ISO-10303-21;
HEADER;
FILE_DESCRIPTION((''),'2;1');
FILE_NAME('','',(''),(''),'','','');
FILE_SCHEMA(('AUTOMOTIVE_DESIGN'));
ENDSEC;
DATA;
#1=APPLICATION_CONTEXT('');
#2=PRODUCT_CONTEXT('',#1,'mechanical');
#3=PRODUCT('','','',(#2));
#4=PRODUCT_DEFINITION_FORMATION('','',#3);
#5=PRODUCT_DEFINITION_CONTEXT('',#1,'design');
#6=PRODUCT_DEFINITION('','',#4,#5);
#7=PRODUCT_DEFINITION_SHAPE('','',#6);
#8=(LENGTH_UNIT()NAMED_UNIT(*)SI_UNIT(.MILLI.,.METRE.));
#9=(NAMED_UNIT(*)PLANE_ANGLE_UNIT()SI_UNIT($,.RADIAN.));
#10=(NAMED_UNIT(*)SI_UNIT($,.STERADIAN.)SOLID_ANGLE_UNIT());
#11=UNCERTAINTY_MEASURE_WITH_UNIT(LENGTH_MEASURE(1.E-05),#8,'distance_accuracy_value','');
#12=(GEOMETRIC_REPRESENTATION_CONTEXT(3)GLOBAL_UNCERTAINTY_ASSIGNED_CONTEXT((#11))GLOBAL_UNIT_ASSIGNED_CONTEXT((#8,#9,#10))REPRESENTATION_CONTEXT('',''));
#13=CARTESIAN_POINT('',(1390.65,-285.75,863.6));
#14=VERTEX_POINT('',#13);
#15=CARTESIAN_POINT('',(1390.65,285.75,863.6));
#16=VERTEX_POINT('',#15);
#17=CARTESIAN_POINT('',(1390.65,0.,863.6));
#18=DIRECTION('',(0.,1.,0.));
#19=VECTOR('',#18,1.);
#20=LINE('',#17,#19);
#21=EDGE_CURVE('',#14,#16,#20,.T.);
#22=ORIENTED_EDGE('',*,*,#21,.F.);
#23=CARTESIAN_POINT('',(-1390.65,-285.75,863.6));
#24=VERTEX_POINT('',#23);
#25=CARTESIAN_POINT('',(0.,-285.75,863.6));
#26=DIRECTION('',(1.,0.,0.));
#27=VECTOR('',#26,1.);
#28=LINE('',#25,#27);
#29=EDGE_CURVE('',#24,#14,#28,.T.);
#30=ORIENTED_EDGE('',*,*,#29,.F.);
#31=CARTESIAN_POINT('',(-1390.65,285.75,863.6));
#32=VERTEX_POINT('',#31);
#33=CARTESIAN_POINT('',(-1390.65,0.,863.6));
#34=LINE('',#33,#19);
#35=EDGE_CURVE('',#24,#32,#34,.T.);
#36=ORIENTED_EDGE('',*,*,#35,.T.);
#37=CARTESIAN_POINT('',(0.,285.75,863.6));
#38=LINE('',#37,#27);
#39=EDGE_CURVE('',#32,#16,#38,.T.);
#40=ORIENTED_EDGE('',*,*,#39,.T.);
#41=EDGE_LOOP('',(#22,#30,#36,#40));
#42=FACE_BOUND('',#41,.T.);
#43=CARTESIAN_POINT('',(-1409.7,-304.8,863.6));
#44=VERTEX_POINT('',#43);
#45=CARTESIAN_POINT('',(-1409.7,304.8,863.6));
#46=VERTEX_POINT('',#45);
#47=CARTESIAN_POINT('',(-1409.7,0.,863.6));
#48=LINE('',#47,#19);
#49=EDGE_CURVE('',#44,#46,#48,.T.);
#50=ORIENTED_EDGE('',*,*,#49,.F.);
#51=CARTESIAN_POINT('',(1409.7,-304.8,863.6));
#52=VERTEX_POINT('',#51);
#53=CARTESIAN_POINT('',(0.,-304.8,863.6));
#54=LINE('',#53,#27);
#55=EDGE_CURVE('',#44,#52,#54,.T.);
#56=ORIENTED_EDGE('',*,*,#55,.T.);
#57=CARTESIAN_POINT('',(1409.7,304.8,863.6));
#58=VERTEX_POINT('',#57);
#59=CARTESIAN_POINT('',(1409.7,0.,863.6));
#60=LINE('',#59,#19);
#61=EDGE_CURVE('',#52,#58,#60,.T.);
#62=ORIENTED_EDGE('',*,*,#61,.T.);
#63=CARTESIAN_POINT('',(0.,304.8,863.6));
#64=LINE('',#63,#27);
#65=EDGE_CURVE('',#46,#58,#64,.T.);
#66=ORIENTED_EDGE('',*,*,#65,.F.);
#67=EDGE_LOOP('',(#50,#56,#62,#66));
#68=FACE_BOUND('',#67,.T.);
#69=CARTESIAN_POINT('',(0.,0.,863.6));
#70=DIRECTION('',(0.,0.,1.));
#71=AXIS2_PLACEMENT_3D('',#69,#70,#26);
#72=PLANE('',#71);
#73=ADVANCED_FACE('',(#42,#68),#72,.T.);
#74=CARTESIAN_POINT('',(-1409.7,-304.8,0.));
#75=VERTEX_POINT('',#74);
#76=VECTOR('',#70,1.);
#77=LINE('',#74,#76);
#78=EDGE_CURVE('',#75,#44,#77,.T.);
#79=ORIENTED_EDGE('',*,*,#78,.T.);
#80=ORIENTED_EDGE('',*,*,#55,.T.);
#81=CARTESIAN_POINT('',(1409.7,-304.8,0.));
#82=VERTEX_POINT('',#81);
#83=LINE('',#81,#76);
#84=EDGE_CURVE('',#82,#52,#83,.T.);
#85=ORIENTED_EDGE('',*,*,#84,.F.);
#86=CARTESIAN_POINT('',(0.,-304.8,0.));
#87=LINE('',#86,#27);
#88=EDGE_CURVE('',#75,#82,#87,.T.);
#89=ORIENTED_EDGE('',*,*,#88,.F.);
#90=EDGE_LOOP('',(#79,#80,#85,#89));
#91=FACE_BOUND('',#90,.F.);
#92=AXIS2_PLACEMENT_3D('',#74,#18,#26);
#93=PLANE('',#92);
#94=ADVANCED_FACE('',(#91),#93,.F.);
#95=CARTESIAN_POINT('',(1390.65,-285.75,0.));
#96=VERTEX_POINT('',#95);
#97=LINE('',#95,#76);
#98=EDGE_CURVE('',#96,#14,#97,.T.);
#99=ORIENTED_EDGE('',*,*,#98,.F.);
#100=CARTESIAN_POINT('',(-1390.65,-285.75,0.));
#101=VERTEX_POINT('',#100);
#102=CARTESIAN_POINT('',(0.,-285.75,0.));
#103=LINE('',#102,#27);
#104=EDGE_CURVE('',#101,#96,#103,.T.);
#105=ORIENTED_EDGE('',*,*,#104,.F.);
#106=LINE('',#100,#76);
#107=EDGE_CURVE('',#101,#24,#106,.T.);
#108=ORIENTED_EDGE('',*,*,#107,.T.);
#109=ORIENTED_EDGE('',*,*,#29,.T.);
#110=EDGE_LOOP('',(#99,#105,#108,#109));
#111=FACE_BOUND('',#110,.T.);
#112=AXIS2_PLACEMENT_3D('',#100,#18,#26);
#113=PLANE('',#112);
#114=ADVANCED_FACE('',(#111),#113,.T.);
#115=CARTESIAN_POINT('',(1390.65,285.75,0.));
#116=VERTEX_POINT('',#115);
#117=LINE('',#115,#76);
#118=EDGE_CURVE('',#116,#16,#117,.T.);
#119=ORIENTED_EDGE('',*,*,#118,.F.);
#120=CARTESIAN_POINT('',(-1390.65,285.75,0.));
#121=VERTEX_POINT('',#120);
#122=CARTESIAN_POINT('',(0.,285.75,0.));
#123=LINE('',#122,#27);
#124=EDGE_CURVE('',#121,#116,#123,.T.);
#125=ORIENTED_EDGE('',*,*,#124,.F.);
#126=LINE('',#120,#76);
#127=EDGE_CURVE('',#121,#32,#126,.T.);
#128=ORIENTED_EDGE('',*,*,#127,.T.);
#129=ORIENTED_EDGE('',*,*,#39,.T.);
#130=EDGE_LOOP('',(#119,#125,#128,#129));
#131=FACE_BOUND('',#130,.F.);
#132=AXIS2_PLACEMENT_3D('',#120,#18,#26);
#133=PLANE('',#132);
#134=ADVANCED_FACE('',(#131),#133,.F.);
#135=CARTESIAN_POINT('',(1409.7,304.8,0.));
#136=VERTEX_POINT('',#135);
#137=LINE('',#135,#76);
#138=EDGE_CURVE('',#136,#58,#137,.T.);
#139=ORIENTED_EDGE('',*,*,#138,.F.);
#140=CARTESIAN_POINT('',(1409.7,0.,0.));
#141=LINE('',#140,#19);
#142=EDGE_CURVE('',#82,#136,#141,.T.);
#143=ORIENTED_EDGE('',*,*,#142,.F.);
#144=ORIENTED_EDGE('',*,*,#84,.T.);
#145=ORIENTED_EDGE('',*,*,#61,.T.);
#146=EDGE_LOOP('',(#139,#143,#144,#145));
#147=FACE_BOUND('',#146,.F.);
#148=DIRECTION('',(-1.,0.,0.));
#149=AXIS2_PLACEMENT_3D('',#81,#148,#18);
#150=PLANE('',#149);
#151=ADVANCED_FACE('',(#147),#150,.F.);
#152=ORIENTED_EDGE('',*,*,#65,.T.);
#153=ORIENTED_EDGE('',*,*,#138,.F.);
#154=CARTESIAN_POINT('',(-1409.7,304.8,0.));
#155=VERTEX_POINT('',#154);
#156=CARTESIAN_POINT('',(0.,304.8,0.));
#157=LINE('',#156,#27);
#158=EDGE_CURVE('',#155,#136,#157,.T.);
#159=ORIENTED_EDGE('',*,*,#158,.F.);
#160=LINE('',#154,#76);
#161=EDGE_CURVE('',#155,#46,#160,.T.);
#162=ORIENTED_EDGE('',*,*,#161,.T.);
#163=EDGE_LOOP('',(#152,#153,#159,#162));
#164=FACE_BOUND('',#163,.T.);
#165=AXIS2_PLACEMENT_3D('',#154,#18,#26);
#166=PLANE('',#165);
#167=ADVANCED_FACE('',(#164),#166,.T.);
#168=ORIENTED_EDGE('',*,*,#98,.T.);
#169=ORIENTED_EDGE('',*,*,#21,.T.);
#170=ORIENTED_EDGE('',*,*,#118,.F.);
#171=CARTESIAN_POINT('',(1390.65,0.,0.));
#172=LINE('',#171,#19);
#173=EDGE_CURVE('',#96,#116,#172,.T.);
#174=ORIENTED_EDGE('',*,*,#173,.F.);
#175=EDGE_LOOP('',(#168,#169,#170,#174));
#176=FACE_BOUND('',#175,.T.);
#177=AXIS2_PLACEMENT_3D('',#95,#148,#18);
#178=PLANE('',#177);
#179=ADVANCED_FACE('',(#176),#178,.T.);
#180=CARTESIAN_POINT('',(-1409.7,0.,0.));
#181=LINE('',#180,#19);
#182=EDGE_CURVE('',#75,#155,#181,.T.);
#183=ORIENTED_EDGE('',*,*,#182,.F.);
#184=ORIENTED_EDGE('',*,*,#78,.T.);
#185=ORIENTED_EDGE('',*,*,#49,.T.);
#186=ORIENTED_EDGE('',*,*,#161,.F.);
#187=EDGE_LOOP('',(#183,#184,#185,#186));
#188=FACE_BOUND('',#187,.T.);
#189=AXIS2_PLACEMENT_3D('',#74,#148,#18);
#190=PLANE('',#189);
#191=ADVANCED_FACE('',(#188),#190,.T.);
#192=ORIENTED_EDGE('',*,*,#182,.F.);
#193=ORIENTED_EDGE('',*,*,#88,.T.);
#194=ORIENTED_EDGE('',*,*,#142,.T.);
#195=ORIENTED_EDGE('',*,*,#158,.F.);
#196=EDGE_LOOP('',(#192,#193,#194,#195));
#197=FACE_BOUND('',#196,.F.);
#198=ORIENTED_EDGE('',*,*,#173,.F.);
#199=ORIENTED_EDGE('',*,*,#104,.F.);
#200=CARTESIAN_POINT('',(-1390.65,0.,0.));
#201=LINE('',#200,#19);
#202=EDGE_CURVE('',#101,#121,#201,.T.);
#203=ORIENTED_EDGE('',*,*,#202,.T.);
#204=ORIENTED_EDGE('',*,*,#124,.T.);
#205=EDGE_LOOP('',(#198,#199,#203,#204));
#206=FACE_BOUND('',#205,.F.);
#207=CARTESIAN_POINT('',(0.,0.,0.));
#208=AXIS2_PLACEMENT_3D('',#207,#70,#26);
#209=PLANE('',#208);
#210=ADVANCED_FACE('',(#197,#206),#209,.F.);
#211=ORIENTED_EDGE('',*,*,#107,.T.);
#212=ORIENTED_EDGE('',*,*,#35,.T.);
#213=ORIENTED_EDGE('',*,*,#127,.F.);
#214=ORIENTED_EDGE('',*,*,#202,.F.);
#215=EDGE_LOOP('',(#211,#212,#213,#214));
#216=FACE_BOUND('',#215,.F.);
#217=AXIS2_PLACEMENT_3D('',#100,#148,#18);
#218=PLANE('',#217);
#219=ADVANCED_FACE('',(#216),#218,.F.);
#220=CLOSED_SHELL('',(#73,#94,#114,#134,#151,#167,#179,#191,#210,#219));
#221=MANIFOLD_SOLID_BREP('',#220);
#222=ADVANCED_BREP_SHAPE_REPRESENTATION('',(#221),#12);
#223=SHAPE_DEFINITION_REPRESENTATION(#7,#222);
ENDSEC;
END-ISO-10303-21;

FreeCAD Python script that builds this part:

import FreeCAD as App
import Part
import Sketcher
from FreeCAD import Vector
Q = App.Units.Quantity


def add_polygon(sketch, points):
    """Adds a closed chain of lines whose ends are joined by coincident constraints."""
    first, n = sketch.GeometryCount, len(points)
    for a, b in zip(points, points[1:] + points[:1]):
        sketch.addGeometry(Part.LineSegment(App.Vector(*a, 0), App.Vector(*b, 0)), False)
    for i in range(n):
        sketch.addConstraint(Sketcher.Constraint("Coincident", first + i, 2, first + (i + 1) % n, 1))

doc = App.newDocument("Part")
params = doc.addObject("Spreadsheet::Sheet", "Params")
for row, (alias, value) in enumerate([
    ("sketch1_width", "111 in"),
    ("sketch1_height", "24 in"),
    ("sketch1_width2", "109.5 in"),
    ("sketch1_height2", "22.5 in"),
    ("pad1_length", "34 in"),
], start=1):
    params.set(f"A{row}", alias)
    params.set(f"B{row}", "=" + value)
    params.setAlias(f"B{row}", alias)

body = doc.addObject("PartDesign::Body", "Body")

sketch1 = body.newObject("Sketcher::SketchObject", "Sketch")
sketch1.AttachmentSupport = (doc.getObject("XY_Plane"), [""])
sketch1.MapMode = "FlatFace"
add_polygon(sketch1, [(-1410, 305), (-1410, -305), (1410, -305), (1410, 305)])
add_polygon(sketch1, [(1391, -286), (-1391, -286), (-1391, 286), (1391, 286)])
sketch1.addConstraint(Sketcher.Constraint("Vertical", 0))
sketch1.addConstraint(Sketcher.Constraint("Horizontal", 1))
sketch1.addConstraint(Sketcher.Constraint("Vertical", 2))
sketch1.addConstraint(Sketcher.Constraint("Horizontal", 3))
sketch1.addConstraint(Sketcher.Constraint("Horizontal", 4))
sketch1.addConstraint(Sketcher.Constraint("Vertical", 5))
sketch1.addConstraint(Sketcher.Constraint("Horizontal", 6))
sketch1.addConstraint(Sketcher.Constraint("Vertical", 7))
sketch1.addConstraint(Sketcher.Constraint("Symmetric", 0, 2, 2, 2, -1, 1))
sketch1.addConstraint(Sketcher.Constraint("Symmetric", 4, 2, 6, 2, -1, 1))
sketch1.addConstraint(Sketcher.Constraint("DistanceX", 1, 1, 1, 2, Q("111 in")))
sketch1.addConstraint(Sketcher.Constraint("DistanceY", 0, 2, 0, 1, Q("24 in")))
sketch1.addConstraint(Sketcher.Constraint("DistanceX", 4, 2, 4, 1, Q("109.5 in")))
sketch1.addConstraint(Sketcher.Constraint("DistanceY", 5, 1, 5, 2, Q("22.5 in")))
sketch1.setExpression("Constraints[18]", "Params.sketch1_width")
sketch1.setExpression("Constraints[19]", "Params.sketch1_height")
sketch1.setExpression("Constraints[20]", "Params.sketch1_width2")
sketch1.setExpression("Constraints[21]", "Params.sketch1_height2")
pad1 = body.newObject("PartDesign::Pad", "Pad")
pad1.Profile = sketch1
pad1.setExpression("Length", "Params.pad1_length")

doc.recompute()
